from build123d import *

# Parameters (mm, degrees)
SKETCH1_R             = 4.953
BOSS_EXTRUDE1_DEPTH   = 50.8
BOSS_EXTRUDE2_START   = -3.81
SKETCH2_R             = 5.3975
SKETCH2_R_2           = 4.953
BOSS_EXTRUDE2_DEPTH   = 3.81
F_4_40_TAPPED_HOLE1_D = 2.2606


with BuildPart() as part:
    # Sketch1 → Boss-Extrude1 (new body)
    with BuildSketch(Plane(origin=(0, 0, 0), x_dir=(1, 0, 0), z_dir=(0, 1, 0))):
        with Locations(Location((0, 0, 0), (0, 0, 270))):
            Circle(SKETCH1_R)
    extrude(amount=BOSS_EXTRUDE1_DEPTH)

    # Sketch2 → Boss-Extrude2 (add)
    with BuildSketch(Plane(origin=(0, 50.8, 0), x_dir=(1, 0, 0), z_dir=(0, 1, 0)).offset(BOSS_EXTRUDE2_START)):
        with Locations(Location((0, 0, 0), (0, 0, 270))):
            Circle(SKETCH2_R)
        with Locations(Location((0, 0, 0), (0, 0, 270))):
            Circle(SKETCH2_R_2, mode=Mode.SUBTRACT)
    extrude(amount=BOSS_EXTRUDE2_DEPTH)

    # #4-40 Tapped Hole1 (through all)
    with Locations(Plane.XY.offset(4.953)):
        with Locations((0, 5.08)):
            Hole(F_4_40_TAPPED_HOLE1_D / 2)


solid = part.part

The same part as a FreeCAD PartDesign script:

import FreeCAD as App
import Part
import Sketcher
from FreeCAD import Vector
Q = App.Units.Quantity

doc = App.newDocument("Part")
body = doc.addObject("PartDesign::Body", "Body")

# Sketch on XZ plane
sketch1 = body.newObject("Sketcher::SketchObject", "Sketch")
sketch1.AttachmentSupport = (doc.getObject("XZ_Plane"), [""])
sketch1.MapMode = "FlatFace"
sketch1.addGeometry(Part.Circle(Vector(0, 0, 0), Vector(0, 0, 1), 5), False)
sketch1.addConstraint([
    Sketcher.Constraint("Coincident", 0, 3, -1, 1),
    Sketcher.Constraint("Diameter", 0, Q("0.39 in")),
])
pad1 = body.newObject("PartDesign::Pad", "Pad")
pad1.Profile = sketch1
pad1.Length = Q("2 in")
pad1.Reversed = True

# Sketch on XZ plane
sketch2 = body.newObject("Sketcher::SketchObject", "Sketch001")
sketch2.AttachmentSupport = (doc.getObject("XZ_Plane"), [""])
sketch2.MapMode = "FlatFace"
sketch2.AttachmentOffset = App.Placement(Vector(0, 0, -1.85 * 25.4), App.Rotation())
sketch2.addGeometry([
    Part.Circle(Vector(0, 0, 0), Vector(0, 0, 1), 5.4),
    Part.Circle(Vector(0, 0, 0), Vector(0, 0, 1), 5),
], False)
sketch2.addConstraint([
    Sketcher.Constraint("Coincident", 0, 3, -1, 1),
    Sketcher.Constraint("Coincident", 1, 3, -1, 1),
    Sketcher.Constraint("Diameter", 1, Q("0.39 in")),
    Sketcher.Constraint("Diameter", 0, Q("0.425 in")),
])
pad2 = body.newObject("PartDesign::Pad", "Pad001")
pad2.Profile = sketch2
pad2.Length = Q("0.15 in")
pad2.Reversed = True

# Sketch on XY plane
sketch3 = body.newObject("Sketcher::SketchObject", "Sketch002")
sketch3.AttachmentSupport = (doc.getObject("XY_Plane"), [""])
sketch3.MapMode = "FlatFace"
sketch3.AttachmentOffset = App.Placement(Vector(0, 0, 0.195 * 25.4), App.Rotation())
sketch3.addGeometry(Part.Circle(Vector(0, 5.1, 0), Vector(0, 0, 1), 1.1), False)
sketch3.addConstraint([
    Sketcher.Constraint("PointOnObject", 0, 3, -2),
    Sketcher.Constraint("Diameter", 0, Q("0.089 in")),
    Sketcher.Constraint("DistanceY", -1, 1, 0, 3, Q("0.2 in")),
])
doc.recompute()
hole = body.newObject("PartDesign::Hole", "Hole")
hole.Profile = sketch3
hole.ThreadType = "None"
hole.Diameter = Q("0.089 in")
hole.DepthType = "ThroughAll"

doc.recompute()
